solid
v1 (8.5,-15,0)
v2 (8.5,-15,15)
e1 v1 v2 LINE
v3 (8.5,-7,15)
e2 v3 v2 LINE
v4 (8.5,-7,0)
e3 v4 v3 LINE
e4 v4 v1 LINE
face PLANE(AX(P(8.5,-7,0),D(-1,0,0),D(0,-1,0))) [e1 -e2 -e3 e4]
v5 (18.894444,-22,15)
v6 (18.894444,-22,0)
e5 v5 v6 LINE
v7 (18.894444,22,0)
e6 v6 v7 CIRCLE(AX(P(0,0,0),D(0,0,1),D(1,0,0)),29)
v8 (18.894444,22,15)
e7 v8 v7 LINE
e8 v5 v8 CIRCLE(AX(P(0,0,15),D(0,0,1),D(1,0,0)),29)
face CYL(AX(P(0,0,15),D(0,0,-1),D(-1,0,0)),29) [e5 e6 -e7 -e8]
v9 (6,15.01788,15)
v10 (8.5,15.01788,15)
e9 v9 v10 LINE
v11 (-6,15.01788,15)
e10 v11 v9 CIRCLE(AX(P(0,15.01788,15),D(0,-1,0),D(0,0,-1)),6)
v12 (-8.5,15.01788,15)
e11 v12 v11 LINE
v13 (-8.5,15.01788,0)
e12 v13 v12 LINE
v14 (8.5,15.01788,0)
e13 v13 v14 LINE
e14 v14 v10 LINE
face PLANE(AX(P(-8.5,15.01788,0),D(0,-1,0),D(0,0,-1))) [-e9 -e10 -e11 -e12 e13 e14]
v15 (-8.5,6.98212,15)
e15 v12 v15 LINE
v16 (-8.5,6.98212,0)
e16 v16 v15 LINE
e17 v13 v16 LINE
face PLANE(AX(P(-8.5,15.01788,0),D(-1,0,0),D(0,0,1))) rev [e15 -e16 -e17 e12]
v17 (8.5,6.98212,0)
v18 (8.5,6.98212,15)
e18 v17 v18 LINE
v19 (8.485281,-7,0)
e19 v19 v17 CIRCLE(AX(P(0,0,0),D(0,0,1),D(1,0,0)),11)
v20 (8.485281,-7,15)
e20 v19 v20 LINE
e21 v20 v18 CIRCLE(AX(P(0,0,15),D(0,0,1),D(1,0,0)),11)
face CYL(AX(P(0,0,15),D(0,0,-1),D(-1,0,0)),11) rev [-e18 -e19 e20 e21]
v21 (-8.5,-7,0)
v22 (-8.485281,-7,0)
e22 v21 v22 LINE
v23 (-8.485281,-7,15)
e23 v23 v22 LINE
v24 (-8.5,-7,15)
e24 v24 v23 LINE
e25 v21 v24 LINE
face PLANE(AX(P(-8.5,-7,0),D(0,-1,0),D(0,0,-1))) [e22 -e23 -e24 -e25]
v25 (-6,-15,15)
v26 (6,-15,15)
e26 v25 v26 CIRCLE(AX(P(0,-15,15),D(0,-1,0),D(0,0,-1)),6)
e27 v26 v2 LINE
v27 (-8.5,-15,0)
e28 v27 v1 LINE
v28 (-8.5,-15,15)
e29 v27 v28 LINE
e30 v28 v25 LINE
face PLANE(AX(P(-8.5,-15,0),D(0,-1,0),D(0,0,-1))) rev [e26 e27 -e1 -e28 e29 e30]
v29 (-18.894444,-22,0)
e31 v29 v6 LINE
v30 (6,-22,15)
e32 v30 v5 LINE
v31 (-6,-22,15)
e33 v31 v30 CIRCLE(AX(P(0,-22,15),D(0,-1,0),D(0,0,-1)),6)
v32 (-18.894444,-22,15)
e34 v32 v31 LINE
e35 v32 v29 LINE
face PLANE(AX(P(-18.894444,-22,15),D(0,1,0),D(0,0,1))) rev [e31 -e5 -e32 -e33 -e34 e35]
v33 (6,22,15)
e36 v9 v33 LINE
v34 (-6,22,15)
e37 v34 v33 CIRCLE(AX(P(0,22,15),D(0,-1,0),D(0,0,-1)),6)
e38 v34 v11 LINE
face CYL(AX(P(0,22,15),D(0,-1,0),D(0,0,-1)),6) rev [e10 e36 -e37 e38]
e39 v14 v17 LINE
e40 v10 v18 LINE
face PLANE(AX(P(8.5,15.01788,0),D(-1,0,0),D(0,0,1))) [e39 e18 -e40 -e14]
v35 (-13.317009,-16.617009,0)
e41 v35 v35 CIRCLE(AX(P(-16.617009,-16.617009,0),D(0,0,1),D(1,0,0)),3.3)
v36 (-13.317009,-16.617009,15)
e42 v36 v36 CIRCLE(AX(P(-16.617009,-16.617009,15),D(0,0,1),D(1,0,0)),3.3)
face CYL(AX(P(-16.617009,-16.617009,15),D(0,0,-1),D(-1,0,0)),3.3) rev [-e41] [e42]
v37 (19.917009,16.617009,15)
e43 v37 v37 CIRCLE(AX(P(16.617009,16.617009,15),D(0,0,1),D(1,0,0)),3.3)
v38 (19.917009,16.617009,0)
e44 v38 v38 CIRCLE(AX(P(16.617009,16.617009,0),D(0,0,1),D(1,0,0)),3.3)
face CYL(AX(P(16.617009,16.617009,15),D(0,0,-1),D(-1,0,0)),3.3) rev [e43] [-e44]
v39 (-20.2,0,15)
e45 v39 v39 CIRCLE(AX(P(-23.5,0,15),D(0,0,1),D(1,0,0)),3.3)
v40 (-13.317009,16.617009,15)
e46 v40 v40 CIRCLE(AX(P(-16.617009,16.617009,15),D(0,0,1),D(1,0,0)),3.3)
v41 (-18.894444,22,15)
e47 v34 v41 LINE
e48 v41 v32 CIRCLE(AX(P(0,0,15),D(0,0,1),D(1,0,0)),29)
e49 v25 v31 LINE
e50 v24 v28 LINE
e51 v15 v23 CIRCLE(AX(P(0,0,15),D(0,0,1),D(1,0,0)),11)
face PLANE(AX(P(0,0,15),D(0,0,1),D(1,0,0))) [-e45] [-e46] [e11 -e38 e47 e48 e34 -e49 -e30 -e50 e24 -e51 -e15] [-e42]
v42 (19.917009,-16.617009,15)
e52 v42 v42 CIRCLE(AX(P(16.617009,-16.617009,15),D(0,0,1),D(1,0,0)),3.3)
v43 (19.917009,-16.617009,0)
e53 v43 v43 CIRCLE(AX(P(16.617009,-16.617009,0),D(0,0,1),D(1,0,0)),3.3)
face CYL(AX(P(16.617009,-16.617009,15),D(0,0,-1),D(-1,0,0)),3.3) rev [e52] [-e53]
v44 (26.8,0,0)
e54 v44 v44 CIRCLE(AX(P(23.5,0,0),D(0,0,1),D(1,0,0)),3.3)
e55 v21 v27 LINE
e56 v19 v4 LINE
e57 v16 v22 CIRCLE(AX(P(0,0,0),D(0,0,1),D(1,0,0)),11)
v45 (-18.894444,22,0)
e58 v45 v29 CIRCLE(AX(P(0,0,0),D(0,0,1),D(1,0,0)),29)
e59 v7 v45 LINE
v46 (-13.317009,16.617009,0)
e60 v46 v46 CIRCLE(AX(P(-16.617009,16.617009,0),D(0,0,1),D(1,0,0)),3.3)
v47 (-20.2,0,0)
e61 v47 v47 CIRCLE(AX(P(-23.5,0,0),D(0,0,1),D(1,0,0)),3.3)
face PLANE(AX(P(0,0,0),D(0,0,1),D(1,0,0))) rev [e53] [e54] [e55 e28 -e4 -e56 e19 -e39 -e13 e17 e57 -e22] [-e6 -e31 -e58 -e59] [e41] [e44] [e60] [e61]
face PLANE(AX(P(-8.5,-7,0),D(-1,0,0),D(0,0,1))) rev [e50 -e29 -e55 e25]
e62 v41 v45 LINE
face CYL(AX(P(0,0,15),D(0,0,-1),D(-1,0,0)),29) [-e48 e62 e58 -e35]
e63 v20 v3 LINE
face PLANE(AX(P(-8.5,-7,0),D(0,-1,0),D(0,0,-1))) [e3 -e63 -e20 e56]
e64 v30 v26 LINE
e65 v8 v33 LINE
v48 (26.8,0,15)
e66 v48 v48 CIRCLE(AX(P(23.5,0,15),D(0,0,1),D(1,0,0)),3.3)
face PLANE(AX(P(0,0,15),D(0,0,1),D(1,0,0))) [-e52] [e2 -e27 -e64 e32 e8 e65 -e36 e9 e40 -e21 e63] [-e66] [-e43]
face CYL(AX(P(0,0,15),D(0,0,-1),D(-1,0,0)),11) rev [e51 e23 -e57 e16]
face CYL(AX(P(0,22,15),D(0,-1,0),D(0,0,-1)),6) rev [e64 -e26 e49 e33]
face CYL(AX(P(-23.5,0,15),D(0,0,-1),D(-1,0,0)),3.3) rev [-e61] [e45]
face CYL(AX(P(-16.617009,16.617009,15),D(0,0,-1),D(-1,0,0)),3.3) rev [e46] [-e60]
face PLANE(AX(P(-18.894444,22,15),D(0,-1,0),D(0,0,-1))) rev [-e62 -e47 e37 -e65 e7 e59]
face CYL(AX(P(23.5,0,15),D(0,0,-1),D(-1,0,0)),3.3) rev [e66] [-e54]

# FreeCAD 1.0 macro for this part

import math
import FreeCAD as App
import Part
import Sketcher

V = App.Vector
Q = App.Units.Quantity

doc = App.newDocument("Part")
body = doc.addObject("PartDesign::Body", "Body")

sketch1 = body.newObject("Sketcher::SketchObject", "Sketch")
sketch1.AttachmentSupport = (doc.getObject("XY_Plane"), [""])
sketch1.MapMode = "FlatFace"
sketch1.addGeometry(Part.LineSegment(V(18.9, 22, 0), V(-18.9, 22, 0)), False)
sketch1.addGeometry(Part.ArcOfCircle(Part.Circle(V(0, 0, 0), V(0, 0, 1), 29), math.radians(131), math.radians(229)), False)
sketch1.addGeometry(Part.LineSegment(V(-18.9, -22, 0), V(18.9, -22, 0)), False)
sketch1.addGeometry(Part.ArcOfCircle(Part.Circle(V(0, 0, 0), V(0, 0, 1), 29), math.radians(-49), math.radians(49)), False)
sketch1.addGeometry(Part.Circle(V(16.6, -16.6, 0), V(0, 0, 1), 3.3), False)
sketch1.addGeometry(Part.Circle(V(-16.6, -16.6, 0), V(0, 0, 1), 3.3), False)
sketch1.addGeometry(Part.Circle(V(23.5, 0, 0), V(0, 0, 1), 3.3), False)
sketch1.addGeometry(Part.Circle(V(0, 0, 0), V(0, 0, 1), 11), False)
sketch1.addGeometry(Part.Circle(V(16.6, 16.6, 0), V(0, 0, 1), 3.3), False)
sketch1.addGeometry(Part.Circle(V(-23.5, 0, 0), V(0, 0, 1), 3.3), False)
sketch1.addGeometry(Part.Circle(V(-16.6, 16.6, 0), V(0, 0, 1), 3.3), False)
sketch1.addConstraint(Sketcher.Constraint("Coincident", 0, 2, 1, 1))
sketch1.addConstraint(Sketcher.Constraint("Coincident", 1, 2, 2, 1))
sketch1.addConstraint(Sketcher.Constraint("Coincident", 2, 2, 3, 1))
sketch1.addConstraint(Sketcher.Constraint("Coincident", 3, 2, 0, 1))
sketch1.addConstraint(Sketcher.Constraint("Horizontal", 0))
sketch1.addConstraint(Sketcher.Constraint("Horizontal", 2))
sketch1.addConstraint(Sketcher.Constraint("Coincident", 1, 3, -1, 1))
sketch1.addConstraint(Sketcher.Constraint("Coincident", 3, 3, -1, 1))
sketch1.addConstraint(Sketcher.Constraint("Coincident", 7, 3, -1, 1))
sketch1.addConstraint(Sketcher.Constraint("Equal", 1, 3))
sketch1.addConstraint(Sketcher.Constraint("Equal", 4, 5))
sketch1.addConstraint(Sketcher.Constraint("Equal", 5, 6))
sketch1.addConstraint(Sketcher.Constraint("Equal", 6, 8))
sketch1.addConstraint(Sketcher.Constraint("Equal", 8, 9))
sketch1.addConstraint(Sketcher.Constraint("Equal", 9, 10))
sketch1.addConstraint(Sketcher.Constraint("Symmetric", 5, 3, 8, 3, -1, 1))
sketch1.addConstraint(Sketcher.Constraint("Symmetric", 6, 3, 9, 3, -1, 1))
sketch1.addConstraint(Sketcher.Constraint("Symmetric", 4, 3, 10, 3, -1, 1))
sketch1.addConstraint(Sketcher.Constraint("Symmetric", 4, 3, 5, 3, -2))
sketch1.addConstraint(Sketcher.Constraint("PointOnObject", 6, 3, -1))
sketch1.addConstraint(Sketcher.Constraint("Vertical", 0, 2, 1, 2))
sketch1.addConstraint(Sketcher.Constraint("Diameter", 7, Q("22 mm")))
sketch1.addConstraint(Sketcher.Constraint("Radius", 1, Q("29 mm")))
sketch1.addConstraint(Sketcher.Constraint("Diameter", 4, Q("6.6 mm")))
sketch1.addConstraint(Sketcher.Constraint("DistanceY", -1, 1, 0, 2, Q("22 mm")))
sketch1.addConstraint(Sketcher.Constraint("DistanceX", -1, 1, 6, 3, Q("23.5 mm")))
sketch1.addConstraint(Sketcher.Constraint("DistanceX", -1, 1, 4, 3, Q("16.617009 mm")))
sketch1.addConstraint(Sketcher.Constraint("DistanceY", 4, 3, -1, 1, Q("16.617009 mm")))
pad1 = body.newObject("PartDesign::Pad", "Pad")
pad1.Profile = sketch1
pad1.Length = 15

sketch2 = body.newObject("Sketcher::SketchObject", "Sketch001")
sketch2.AttachmentSupport = (doc.getObject("XY_Plane"), [""])
sketch2.MapMode = "FlatFace"
sketch2.AttachmentOffset = App.Placement(V(0, 0, 15), App.Rotation())
sketch2.addGeometry(Part.LineSegment(V(-8, -7, 0), V(-8, -15, 0)), False)
sketch2.addGeometry(Part.LineSegment(V(-8, -15, 0), V(8, -15, 0)), False)
sketch2.addGeometry(Part.LineSegment(V(8, -15, 0), V(8, -7, 0)), False)
sketch2.addGeometry(Part.LineSegment(V(8, -7, 0), V(-8, -7, 0)), False)
sketch2.addGeometry(Part.LineSegment(V(-8, 15, 0), V(-8, 7, 0)), False)
sketch2.addGeometry(Part.LineSegment(V(-8, 7, 0), V(8, 7, 0)), False)
sketch2.addGeometry(Part.LineSegment(V(8, 7, 0), V(8, 15, 0)), False)
sketch2.addGeometry(Part.LineSegment(V(8, 15, 0), V(-8, 15, 0)), False)
sketch2.addConstraint(Sketcher.Constraint("Coincident", 0, 2, 1, 1))
sketch2.addConstraint(Sketcher.Constraint("Coincident", 1, 2, 2, 1))
sketch2.addConstraint(Sketcher.Constraint("Coincident", 2, 2, 3, 1))
sketch2.addConstraint(Sketcher.Constraint("Coincident", 3, 2, 0, 1))
sketch2.addConstraint(Sketcher.Constraint("Coincident", 4, 2, 5, 1))
sketch2.addConstraint(Sketcher.Constraint("Coincident", 5, 2, 6, 1))
sketch2.addConstraint(Sketcher.Constraint("Coincident", 6, 2, 7, 1))
sketch2.addConstraint(Sketcher.Constraint("Coincident", 7, 2, 4, 1))
sketch2.addConstraint(Sketcher.Constraint("Vertical", 0))
sketch2.addConstraint(Sketcher.Constraint("Horizontal", 1))
sketch2.addConstraint(Sketcher.Constraint("Vertical", 2))
sketch2.addConstraint(Sketcher.Constraint("Horizontal", 3))
sketch2.addConstraint(Sketcher.Constraint("Vertical", 4))
sketch2.addConstraint(Sketcher.Constraint("Horizontal", 5))
sketch2.addConstraint(Sketcher.Constraint("Vertical", 6))
sketch2.addConstraint(Sketcher.Constraint("Horizontal", 7))
sketch2.addConstraint(Sketcher.Constraint("Vertical", 3, 2, 4, 2))
sketch2.addConstraint(Sketcher.Constraint("Vertical", 2, 2, 5, 2))
sketch2.addConstraint(Sketcher.Constraint("DistanceX", 1, 1, 1, 2, Q("17 mm")))
sketch2.addConstraint(Sketcher.Constraint("DistanceY", 0, 2, 0, 1, Q("8 mm")))
sketch2.addConstraint(Sketcher.Constraint("DistanceY", 0, 2, -1, 1, Q("15 mm")))
sketch2.addConstraint(Sketcher.Constraint("DistanceX", 0, 2, -1, 1, Q("8.5 mm")))
sketch2.addConstraint(Sketcher.Constraint("DistanceY", 4, 2, 4, 1, Q("8.03576 mm")))
sketch2.addConstraint(Sketcher.Constraint("DistanceY", -1, 1, 4, 2, Q("6.98212 mm")))
pocket1 = body.newObject("PartDesign::Pocket", "Pocket")
pocket1.Profile = sketch2
pocket1.Type = "ThroughAll"

sketch3 = body.newObject("Sketcher::SketchObject", "Sketch002")
sketch3.AttachmentSupport = (doc.getObject("XZ_Plane"), [""])
sketch3.MapMode = "FlatFace"
sketch3.AttachmentOffset = App.Placement(V(0, 0, 22), App.Rotation())
sketch3.addGeometry(Part.Circle(V(0, 15, 0), V(0, 0, 1), 6), False)
sketch3.addConstraint(Sketcher.Constraint("PointOnObject", 0, 3, -2))
sketch3.addConstraint(Sketcher.Constraint("Diameter", 0, Q("12 mm")))
sketch3.addConstraint(Sketcher.Constraint("DistanceY", -1, 1, 0, 3, Q("15 mm")))
pocket2 = body.newObject("PartDesign::Pocket", "Pocket001")
pocket2.Profile = sketch3
pocket2.Type = "ThroughAll"

doc.recompute()
